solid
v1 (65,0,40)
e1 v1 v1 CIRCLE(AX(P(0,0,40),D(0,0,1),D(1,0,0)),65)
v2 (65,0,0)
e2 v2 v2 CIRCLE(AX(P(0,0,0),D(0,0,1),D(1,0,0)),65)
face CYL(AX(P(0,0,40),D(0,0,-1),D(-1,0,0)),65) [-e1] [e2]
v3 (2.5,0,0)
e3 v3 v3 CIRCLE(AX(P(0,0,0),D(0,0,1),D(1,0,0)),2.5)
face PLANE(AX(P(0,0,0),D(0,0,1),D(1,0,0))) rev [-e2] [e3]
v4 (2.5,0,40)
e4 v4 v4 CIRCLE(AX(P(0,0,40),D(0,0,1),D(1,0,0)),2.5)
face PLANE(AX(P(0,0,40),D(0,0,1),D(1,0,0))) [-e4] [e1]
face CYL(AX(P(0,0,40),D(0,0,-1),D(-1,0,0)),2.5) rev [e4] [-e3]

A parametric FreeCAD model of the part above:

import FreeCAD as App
import Part
import Sketcher
from FreeCAD import Vector

doc = App.newDocument("Part")
body = doc.addObject("PartDesign::Body", "Body")

# Sketch on XY plane
sketch1 = body.newObject("Sketcher::SketchObject", "Sketch")
sketch1.AttachmentSupport = (doc.getObject("XY_Plane"), [""])
sketch1.MapMode = "FlatFace"
sketch1.addGeometry(Part.Circle(Vector(0, 0, 0), Vector(0, 0, 1), 65), False)
sketch1.addConstraint([
    Sketcher.Constraint("Coincident", 0, 3, -1, 1),
    Sketcher.Constraint("Diameter", 0, 130.0),
])
pad1 = body.newObject("PartDesign::Pad", "Pad")
pad1.Profile = sketch1
pad1.Length = 40

# Sketch on XY plane
sketch2 = body.newObject("Sketcher::SketchObject", "Sketch001")
sketch2.AttachmentSupport = (doc.getObject("XY_Plane"), [""])
sketch2.MapMode = "FlatFace"
sketch2.addGeometry(Part.Circle(Vector(0, 0, 0), Vector(0, 0, 1), 2.5), False)
sketch2.addConstraint([
    Sketcher.Constraint("Coincident", 0, 3, -1, 1),
    Sketcher.Constraint("Diameter", 0, 5.0),
])
pocket1 = body.newObject("PartDesign::Pocket", "Pocket")
pocket1.Profile = sketch2
pocket1.Type = "ThroughAll"
pocket1.Reversed = True

doc.recompute()
